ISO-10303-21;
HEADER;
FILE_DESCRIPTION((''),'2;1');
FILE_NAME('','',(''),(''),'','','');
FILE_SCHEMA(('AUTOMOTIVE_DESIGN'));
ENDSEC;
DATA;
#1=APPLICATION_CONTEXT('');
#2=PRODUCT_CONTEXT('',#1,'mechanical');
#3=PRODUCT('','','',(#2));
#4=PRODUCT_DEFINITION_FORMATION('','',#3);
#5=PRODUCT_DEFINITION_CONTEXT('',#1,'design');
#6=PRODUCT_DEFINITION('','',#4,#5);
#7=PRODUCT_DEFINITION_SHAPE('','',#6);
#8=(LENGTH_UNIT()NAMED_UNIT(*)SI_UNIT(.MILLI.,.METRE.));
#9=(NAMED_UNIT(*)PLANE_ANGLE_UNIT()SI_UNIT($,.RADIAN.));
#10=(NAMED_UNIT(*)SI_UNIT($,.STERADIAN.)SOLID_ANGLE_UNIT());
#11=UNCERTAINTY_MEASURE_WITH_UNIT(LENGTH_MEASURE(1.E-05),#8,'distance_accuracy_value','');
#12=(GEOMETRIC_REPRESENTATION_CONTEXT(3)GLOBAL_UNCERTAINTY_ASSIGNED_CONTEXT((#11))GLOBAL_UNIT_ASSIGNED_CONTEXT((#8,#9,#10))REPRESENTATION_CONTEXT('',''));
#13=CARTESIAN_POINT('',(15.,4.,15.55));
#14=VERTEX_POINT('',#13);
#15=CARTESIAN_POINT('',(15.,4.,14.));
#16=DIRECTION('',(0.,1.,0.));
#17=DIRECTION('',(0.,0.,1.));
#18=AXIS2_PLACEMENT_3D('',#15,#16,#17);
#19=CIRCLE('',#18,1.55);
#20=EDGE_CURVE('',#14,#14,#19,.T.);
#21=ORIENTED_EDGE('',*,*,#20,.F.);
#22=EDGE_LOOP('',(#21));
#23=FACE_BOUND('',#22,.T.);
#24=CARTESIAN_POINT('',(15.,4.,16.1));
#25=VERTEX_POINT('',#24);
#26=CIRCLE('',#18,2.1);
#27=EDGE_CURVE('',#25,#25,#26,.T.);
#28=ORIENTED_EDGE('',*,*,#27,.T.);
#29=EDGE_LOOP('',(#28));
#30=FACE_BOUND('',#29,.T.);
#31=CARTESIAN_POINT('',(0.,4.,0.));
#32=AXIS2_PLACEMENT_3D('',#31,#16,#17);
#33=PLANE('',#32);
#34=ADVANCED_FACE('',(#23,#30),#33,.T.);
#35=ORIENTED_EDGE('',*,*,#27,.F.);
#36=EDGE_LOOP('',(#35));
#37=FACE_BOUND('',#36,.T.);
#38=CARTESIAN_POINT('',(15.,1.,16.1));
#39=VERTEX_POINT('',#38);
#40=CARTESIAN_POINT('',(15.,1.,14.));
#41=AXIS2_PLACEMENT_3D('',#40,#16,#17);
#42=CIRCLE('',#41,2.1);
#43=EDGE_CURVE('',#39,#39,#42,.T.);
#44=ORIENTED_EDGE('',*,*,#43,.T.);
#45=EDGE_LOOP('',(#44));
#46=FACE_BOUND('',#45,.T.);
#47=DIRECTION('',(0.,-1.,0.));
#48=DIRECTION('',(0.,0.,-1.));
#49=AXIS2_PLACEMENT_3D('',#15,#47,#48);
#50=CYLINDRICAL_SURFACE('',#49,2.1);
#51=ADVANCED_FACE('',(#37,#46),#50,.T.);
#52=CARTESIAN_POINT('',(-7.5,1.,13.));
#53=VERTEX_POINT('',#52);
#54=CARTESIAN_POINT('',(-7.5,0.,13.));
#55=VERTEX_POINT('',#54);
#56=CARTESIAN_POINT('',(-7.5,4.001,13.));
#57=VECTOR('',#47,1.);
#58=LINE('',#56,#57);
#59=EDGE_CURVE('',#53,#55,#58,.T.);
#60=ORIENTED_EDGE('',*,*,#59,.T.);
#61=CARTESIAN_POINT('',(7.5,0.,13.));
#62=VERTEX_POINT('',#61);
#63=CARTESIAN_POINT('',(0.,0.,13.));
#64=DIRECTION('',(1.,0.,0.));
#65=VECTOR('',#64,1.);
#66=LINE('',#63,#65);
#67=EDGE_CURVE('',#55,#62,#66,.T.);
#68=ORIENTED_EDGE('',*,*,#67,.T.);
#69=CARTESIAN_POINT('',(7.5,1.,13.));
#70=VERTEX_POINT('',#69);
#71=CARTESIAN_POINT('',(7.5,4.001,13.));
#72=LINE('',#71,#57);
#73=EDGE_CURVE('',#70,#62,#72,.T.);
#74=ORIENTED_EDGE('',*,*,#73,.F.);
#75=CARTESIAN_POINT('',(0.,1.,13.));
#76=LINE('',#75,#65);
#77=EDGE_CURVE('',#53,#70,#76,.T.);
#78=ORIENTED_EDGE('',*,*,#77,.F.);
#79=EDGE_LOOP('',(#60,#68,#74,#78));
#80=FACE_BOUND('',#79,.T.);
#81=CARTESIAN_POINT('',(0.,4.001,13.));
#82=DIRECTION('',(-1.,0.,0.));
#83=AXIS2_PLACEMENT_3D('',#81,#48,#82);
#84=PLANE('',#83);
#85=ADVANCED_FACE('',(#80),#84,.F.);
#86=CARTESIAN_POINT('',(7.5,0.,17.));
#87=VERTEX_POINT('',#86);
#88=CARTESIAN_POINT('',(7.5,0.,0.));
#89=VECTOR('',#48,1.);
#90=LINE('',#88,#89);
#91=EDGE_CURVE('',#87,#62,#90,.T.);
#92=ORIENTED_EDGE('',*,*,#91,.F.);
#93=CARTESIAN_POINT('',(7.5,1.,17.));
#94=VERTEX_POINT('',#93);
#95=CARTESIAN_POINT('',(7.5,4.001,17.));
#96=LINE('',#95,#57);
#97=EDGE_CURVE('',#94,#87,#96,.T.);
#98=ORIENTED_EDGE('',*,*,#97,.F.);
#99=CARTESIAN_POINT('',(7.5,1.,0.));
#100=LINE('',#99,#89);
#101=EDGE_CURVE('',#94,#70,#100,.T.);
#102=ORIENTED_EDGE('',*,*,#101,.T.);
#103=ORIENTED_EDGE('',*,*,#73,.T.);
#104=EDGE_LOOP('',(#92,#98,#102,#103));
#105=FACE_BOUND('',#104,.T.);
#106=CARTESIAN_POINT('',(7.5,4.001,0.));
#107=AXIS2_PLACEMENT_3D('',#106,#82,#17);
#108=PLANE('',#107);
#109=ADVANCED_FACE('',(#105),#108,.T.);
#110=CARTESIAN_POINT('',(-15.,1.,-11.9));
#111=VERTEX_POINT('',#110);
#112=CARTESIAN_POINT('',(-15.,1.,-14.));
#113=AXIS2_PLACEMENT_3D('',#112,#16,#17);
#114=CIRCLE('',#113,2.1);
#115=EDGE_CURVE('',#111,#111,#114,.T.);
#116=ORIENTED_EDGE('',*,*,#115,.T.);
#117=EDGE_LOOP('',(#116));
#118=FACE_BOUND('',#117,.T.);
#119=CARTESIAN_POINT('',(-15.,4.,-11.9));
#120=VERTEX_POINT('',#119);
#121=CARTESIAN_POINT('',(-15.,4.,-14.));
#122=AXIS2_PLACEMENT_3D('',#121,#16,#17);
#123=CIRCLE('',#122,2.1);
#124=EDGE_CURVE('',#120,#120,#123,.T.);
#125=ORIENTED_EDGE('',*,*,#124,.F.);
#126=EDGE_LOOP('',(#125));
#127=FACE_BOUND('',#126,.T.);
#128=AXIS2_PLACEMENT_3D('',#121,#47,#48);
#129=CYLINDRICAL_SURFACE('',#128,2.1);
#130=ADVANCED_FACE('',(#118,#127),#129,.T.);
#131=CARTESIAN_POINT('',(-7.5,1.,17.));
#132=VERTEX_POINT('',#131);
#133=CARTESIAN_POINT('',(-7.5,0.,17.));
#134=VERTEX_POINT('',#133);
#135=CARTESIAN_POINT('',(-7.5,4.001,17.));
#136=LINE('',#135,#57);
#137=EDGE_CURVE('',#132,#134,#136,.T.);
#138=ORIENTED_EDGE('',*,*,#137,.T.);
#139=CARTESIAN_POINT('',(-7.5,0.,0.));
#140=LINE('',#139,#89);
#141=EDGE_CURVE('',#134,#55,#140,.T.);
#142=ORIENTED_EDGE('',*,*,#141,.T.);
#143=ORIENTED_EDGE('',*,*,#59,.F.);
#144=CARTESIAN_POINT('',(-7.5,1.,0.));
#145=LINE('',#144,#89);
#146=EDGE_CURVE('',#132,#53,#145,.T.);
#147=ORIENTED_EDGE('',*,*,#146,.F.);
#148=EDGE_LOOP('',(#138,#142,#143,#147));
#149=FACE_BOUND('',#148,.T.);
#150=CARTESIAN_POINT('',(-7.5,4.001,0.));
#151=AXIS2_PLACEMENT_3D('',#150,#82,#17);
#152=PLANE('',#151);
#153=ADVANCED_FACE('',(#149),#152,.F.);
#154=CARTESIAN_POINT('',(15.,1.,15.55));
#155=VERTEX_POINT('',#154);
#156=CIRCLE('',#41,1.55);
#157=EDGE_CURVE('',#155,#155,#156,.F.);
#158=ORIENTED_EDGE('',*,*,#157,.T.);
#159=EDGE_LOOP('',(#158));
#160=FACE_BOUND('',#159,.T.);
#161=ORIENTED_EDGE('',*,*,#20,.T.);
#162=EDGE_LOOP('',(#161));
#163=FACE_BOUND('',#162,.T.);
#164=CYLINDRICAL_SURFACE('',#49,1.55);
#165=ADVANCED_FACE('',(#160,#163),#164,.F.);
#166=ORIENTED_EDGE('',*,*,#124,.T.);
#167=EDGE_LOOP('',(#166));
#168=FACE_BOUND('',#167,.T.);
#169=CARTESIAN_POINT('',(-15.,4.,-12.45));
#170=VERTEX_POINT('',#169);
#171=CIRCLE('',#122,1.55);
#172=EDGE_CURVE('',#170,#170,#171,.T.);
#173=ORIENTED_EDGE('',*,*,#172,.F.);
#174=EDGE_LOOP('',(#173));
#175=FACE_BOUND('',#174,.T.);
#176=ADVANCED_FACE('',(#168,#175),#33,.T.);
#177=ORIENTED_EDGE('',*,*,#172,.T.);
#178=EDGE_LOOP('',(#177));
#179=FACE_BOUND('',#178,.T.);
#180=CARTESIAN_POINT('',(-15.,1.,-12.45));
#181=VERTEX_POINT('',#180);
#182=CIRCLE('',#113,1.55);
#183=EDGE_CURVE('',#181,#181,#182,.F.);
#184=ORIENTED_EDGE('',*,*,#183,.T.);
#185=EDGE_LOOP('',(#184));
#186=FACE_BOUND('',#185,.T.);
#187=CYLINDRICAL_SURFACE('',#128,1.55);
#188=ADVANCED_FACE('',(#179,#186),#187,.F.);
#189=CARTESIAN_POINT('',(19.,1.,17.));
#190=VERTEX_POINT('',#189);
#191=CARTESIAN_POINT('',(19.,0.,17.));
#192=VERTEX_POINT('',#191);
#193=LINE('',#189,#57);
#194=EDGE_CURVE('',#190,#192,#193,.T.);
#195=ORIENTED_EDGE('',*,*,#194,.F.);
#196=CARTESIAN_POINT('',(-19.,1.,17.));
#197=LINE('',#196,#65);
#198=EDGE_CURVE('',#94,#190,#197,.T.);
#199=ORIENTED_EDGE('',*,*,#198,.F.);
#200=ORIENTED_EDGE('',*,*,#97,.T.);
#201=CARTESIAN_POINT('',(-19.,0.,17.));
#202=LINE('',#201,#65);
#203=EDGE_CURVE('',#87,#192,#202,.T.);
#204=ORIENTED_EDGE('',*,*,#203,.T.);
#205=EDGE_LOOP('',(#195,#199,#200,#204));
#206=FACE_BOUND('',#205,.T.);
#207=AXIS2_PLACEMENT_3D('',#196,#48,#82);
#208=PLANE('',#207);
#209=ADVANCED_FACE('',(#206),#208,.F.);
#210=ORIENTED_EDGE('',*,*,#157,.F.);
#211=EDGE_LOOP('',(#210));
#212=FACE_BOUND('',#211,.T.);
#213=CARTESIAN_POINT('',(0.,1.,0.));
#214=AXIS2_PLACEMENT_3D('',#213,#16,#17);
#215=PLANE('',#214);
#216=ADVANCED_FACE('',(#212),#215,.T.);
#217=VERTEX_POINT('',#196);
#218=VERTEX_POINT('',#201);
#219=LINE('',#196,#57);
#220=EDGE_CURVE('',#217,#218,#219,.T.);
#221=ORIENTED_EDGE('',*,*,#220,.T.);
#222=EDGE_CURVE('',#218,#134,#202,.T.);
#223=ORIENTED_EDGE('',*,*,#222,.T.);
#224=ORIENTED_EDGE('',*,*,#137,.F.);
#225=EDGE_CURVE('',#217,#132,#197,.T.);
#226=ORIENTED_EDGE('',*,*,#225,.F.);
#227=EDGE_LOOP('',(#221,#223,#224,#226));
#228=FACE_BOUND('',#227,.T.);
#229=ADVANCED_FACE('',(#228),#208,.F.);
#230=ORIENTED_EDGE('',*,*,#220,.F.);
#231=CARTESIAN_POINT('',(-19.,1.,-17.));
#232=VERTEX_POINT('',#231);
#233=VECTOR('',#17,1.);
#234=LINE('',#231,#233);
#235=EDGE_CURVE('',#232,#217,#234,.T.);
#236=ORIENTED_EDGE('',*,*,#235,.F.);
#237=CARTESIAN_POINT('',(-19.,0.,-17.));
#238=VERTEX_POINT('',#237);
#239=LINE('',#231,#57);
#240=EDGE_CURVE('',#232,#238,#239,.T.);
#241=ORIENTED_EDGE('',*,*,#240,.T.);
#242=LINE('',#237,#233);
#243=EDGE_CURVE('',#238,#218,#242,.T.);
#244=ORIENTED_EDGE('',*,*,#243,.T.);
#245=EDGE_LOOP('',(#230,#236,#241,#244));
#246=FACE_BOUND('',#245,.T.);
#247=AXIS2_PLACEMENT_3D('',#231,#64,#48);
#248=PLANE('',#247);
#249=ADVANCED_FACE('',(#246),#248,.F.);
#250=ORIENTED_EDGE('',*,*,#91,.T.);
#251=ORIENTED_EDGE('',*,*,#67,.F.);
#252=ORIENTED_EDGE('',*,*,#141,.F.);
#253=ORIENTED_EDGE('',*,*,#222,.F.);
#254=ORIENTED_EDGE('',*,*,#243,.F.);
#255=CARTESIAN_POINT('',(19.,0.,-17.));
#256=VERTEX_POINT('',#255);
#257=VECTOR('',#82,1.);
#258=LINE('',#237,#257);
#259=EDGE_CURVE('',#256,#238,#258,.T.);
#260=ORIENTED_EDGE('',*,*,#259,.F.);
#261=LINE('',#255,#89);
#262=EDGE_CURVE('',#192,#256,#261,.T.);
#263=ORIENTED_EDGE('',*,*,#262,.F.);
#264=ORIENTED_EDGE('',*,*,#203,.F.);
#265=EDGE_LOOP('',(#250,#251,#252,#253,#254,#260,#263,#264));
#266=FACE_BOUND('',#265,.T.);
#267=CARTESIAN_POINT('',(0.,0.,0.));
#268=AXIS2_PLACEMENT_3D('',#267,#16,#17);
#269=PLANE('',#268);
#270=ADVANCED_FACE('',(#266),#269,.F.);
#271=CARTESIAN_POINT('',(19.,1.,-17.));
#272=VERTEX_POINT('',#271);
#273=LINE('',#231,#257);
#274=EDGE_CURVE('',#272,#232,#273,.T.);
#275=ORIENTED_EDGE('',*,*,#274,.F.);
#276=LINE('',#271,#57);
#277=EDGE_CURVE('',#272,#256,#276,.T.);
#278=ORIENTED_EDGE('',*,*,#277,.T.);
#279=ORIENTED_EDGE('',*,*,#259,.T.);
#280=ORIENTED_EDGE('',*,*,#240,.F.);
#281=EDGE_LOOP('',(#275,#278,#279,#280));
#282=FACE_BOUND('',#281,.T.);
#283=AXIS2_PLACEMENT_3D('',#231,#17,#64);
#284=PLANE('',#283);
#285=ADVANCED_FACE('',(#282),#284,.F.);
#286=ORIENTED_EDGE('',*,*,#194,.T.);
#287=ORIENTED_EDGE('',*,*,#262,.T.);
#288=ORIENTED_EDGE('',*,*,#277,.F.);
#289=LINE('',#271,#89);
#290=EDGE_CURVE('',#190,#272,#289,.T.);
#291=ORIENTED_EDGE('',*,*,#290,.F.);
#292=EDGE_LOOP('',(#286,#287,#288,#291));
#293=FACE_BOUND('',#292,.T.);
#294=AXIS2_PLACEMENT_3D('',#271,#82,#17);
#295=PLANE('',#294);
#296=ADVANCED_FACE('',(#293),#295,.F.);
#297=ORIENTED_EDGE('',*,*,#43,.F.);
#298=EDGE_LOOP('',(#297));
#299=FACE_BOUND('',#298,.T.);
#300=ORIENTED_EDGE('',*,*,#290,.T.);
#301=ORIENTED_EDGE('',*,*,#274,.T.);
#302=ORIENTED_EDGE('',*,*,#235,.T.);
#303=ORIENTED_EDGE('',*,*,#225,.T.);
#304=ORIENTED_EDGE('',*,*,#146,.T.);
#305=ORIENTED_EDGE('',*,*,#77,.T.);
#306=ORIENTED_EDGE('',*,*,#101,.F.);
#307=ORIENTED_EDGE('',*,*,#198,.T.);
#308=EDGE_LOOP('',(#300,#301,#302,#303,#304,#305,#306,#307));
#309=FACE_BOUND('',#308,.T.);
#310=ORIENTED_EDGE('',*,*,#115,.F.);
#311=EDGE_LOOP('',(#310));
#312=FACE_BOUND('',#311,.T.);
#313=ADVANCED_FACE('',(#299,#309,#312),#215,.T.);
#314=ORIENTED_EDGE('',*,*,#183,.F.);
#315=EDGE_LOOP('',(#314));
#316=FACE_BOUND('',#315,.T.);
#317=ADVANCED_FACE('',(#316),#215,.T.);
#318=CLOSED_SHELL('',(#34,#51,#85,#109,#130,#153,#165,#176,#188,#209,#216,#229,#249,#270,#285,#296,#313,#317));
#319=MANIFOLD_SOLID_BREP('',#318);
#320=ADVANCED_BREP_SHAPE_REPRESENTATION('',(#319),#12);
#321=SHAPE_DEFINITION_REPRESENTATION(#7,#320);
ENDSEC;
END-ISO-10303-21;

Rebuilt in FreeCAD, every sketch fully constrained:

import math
import FreeCAD as App
import Part
import Sketcher

V = App.Vector

doc = App.newDocument("Part")
body = doc.addObject("PartDesign::Body", "Body")

sketch1 = body.newObject("Sketcher::SketchObject", "Sketch")
sketch1.AttachmentSupport = (doc.getObject("XZ_Plane"), [""])
sketch1.MapMode = "FlatFace"
sketch1.addGeometry([
    Part.LineSegment(V(-19, -17, 0), V(-19, 17, 0)),
    Part.LineSegment(V(-19, 17, 0), V(19, 17, 0)),
    Part.LineSegment(V(19, 17, 0), V(19, -17, 0)),
    Part.LineSegment(V(19, -17, 0), V(-19, -17, 0)),
], False)
sketch1.addConstraint([
    Sketcher.Constraint("Coincident", 0, 2, 1, 1),
    Sketcher.Constraint("Coincident", 1, 2, 2, 1),
    Sketcher.Constraint("Coincident", 2, 2, 3, 1),
    Sketcher.Constraint("Coincident", 3, 2, 0, 1),
    Sketcher.Constraint("Vertical", 0),
    Sketcher.Constraint("Horizontal", 1),
    Sketcher.Constraint("Vertical", 2),
    Sketcher.Constraint("Horizontal", 3),
    Sketcher.Constraint("Symmetric", 0, 2, 2, 2, -1, 1),
    Sketcher.Constraint("DistanceX", 1, 1, 1, 2, 38.0),
    Sketcher.Constraint("DistanceY", 0, 1, 0, 2, 34.0),
])
pad1 = body.newObject("PartDesign::Pad", "Pad")
pad1.Profile = sketch1
pad1.Length = 1
pad1.Reversed = True

sketch2 = body.newObject("Sketcher::SketchObject", "Sketch001")
sketch2.AttachmentSupport = (doc.getObject("XZ_Plane"), [""])
sketch2.MapMode = "FlatFace"
sketch2.AttachmentOffset = App.Placement(V(0, 0, -1), App.Rotation())
sketch2.addGeometry([
    Part.ArcOfCircle(Part.Circle(V(15, 14, 0), V(0, 0, 1), 2.1), math.radians(-90), math.radians(0)),
    Part.ArcOfCircle(Part.Circle(V(15, 14, 0), V(0, 0, 1), 2.1), math.radians(-180), math.radians(-90)),
    Part.ArcOfCircle(Part.Circle(V(15, 14, 0), V(0, 0, 1), 2.1), math.radians(0), math.radians(180)),
    Part.ArcOfCircle(Part.Circle(V(15, 14, 0), V(0, 0, 1), 1.6), math.radians(0), math.radians(180)),
    Part.ArcOfCircle(Part.Circle(V(15, 14, 0), V(0, 0, 1), 1.5), math.radians(180), math.radians(270)),
    Part.ArcOfCircle(Part.Circle(V(15, 14, 0), V(0, 0, 1), 1.5), math.radians(-90), math.radians(0)),
    Part.ArcOfCircle(Part.Circle(V(-15, -14, 0), V(0, 0, 1), 2.1), math.radians(90), math.radians(360)),
    Part.ArcOfCircle(Part.Circle(V(-15, -14, 0), V(0, 0, 1), 2.1), math.radians(0), math.radians(90)),
    Part.ArcOfCircle(Part.Circle(V(-15, -14, 0), V(0, 0, 1), 1.6), math.radians(90), math.radians(360)),
    Part.ArcOfCircle(Part.Circle(V(-15, -14, 0), V(0, 0, 1), 1.5), math.radians(0), math.radians(90)),
], False)
sketch2.addConstraint([
    Sketcher.Constraint("Tangent", 0, 1, 1, 2),
    Sketcher.Constraint("Tangent", 1, 1, 2, 2),
    Sketcher.Constraint("Tangent", 2, 1, 0, 2),
    Sketcher.Constraint("Tangent", 3, 2, 4, 1),
    Sketcher.Constraint("Tangent", 4, 2, 5, 1),
    Sketcher.Constraint("Tangent", 5, 2, 3, 1),
    Sketcher.Constraint("Tangent", 6, 1, 7, 2),
    Sketcher.Constraint("Coincident", 7, 1, 6, 2),
    Sketcher.Constraint("Tangent", 8, 1, 9, 2),
    Sketcher.Constraint("Coincident", 9, 1, 8, 2),
    Sketcher.Constraint("Coincident", 3, 3, 0, 3),
    Sketcher.Constraint("Coincident", 8, 3, 6, 3),
    Sketcher.Constraint("Equal", 2, 6),
    Sketcher.Constraint("Equal", 5, 8),
    Sketcher.Constraint("Symmetric", 0, 3, 6, 3, -1, 1),
    Sketcher.Constraint("Horizontal", 5, 3, 1, 1),
    Sketcher.Constraint("Horizontal", 1, 1, 2, 1),
    Sketcher.Constraint("Horizontal", 2, 1, 3, 2),
    Sketcher.Constraint("Horizontal", 3, 2, 5, 2),
    Sketcher.Constraint("Horizontal", 9, 3, 7, 1),
    Sketcher.Constraint("Horizontal", 7, 1, 9, 1),
    Sketcher.Constraint("Vertical", 5, 3, 0, 1),
    Sketcher.Constraint("Vertical", 0, 1, 4, 2),
    Sketcher.Constraint("Vertical", 9, 3, 6, 1),
    Sketcher.Constraint("Vertical", 6, 1, 8, 1),
    Sketcher.Constraint("Radius", 0, 2.1),
    Sketcher.Constraint("Radius", 3, 1.55),
    Sketcher.Constraint("DistanceX", -1, 1, 0, 3, 15.0),
    Sketcher.Constraint("DistanceY", -1, 1, 0, 3, 14.0),
])
pad2 = body.newObject("PartDesign::Pad", "Pad001")
pad2.Profile = sketch2
pad2.Length = 3
pad2.Reversed = True

sketch3 = body.newObject("Sketcher::SketchObject", "Sketch002")
sketch3.AttachmentSupport = (doc.getObject("XZ_Plane"), [""])
sketch3.MapMode = "FlatFace"
sketch3.addGeometry([
    Part.LineSegment(V(-7.5, 17, 0), V(-7.5, 13, 0)),
    Part.LineSegment(V(-7.5, 13, 0), V(7.5, 13, 0)),
    Part.LineSegment(V(7.5, 13, 0), V(7.5, 17, 0)),
    Part.LineSegment(V(7.5, 17, 0), V(-7.5, 17, 0)),
], False)
sketch3.addConstraint([
    Sketcher.Constraint("Coincident", 0, 2, 1, 1),
    Sketcher.Constraint("Coincident", 1, 2, 2, 1),
    Sketcher.Constraint("Coincident", 2, 2, 3, 1),
    Sketcher.Constraint("Coincident", 3, 2, 0, 1),
    Sketcher.Constraint("Vertical", 0),
    Sketcher.Constraint("Horizontal", 1),
    Sketcher.Constraint("Vertical", 2),
    Sketcher.Constraint("Horizontal", 3),
    Sketcher.Constraint("DistanceX", 1, 1, 1, 2, 15.0),
    Sketcher.Constraint("DistanceY", 0, 2, 0, 1, 4.0),
    Sketcher.Constraint("DistanceY", -1, 1, 0, 2, 13.0),
    Sketcher.Constraint("DistanceX", 0, 2, -1, 1, 7.5),
])
pocket1 = body.newObject("PartDesign::Pocket", "Pocket")
pocket1.Profile = sketch3
pocket1.Type = "UpToFirst"

doc.recompute()
